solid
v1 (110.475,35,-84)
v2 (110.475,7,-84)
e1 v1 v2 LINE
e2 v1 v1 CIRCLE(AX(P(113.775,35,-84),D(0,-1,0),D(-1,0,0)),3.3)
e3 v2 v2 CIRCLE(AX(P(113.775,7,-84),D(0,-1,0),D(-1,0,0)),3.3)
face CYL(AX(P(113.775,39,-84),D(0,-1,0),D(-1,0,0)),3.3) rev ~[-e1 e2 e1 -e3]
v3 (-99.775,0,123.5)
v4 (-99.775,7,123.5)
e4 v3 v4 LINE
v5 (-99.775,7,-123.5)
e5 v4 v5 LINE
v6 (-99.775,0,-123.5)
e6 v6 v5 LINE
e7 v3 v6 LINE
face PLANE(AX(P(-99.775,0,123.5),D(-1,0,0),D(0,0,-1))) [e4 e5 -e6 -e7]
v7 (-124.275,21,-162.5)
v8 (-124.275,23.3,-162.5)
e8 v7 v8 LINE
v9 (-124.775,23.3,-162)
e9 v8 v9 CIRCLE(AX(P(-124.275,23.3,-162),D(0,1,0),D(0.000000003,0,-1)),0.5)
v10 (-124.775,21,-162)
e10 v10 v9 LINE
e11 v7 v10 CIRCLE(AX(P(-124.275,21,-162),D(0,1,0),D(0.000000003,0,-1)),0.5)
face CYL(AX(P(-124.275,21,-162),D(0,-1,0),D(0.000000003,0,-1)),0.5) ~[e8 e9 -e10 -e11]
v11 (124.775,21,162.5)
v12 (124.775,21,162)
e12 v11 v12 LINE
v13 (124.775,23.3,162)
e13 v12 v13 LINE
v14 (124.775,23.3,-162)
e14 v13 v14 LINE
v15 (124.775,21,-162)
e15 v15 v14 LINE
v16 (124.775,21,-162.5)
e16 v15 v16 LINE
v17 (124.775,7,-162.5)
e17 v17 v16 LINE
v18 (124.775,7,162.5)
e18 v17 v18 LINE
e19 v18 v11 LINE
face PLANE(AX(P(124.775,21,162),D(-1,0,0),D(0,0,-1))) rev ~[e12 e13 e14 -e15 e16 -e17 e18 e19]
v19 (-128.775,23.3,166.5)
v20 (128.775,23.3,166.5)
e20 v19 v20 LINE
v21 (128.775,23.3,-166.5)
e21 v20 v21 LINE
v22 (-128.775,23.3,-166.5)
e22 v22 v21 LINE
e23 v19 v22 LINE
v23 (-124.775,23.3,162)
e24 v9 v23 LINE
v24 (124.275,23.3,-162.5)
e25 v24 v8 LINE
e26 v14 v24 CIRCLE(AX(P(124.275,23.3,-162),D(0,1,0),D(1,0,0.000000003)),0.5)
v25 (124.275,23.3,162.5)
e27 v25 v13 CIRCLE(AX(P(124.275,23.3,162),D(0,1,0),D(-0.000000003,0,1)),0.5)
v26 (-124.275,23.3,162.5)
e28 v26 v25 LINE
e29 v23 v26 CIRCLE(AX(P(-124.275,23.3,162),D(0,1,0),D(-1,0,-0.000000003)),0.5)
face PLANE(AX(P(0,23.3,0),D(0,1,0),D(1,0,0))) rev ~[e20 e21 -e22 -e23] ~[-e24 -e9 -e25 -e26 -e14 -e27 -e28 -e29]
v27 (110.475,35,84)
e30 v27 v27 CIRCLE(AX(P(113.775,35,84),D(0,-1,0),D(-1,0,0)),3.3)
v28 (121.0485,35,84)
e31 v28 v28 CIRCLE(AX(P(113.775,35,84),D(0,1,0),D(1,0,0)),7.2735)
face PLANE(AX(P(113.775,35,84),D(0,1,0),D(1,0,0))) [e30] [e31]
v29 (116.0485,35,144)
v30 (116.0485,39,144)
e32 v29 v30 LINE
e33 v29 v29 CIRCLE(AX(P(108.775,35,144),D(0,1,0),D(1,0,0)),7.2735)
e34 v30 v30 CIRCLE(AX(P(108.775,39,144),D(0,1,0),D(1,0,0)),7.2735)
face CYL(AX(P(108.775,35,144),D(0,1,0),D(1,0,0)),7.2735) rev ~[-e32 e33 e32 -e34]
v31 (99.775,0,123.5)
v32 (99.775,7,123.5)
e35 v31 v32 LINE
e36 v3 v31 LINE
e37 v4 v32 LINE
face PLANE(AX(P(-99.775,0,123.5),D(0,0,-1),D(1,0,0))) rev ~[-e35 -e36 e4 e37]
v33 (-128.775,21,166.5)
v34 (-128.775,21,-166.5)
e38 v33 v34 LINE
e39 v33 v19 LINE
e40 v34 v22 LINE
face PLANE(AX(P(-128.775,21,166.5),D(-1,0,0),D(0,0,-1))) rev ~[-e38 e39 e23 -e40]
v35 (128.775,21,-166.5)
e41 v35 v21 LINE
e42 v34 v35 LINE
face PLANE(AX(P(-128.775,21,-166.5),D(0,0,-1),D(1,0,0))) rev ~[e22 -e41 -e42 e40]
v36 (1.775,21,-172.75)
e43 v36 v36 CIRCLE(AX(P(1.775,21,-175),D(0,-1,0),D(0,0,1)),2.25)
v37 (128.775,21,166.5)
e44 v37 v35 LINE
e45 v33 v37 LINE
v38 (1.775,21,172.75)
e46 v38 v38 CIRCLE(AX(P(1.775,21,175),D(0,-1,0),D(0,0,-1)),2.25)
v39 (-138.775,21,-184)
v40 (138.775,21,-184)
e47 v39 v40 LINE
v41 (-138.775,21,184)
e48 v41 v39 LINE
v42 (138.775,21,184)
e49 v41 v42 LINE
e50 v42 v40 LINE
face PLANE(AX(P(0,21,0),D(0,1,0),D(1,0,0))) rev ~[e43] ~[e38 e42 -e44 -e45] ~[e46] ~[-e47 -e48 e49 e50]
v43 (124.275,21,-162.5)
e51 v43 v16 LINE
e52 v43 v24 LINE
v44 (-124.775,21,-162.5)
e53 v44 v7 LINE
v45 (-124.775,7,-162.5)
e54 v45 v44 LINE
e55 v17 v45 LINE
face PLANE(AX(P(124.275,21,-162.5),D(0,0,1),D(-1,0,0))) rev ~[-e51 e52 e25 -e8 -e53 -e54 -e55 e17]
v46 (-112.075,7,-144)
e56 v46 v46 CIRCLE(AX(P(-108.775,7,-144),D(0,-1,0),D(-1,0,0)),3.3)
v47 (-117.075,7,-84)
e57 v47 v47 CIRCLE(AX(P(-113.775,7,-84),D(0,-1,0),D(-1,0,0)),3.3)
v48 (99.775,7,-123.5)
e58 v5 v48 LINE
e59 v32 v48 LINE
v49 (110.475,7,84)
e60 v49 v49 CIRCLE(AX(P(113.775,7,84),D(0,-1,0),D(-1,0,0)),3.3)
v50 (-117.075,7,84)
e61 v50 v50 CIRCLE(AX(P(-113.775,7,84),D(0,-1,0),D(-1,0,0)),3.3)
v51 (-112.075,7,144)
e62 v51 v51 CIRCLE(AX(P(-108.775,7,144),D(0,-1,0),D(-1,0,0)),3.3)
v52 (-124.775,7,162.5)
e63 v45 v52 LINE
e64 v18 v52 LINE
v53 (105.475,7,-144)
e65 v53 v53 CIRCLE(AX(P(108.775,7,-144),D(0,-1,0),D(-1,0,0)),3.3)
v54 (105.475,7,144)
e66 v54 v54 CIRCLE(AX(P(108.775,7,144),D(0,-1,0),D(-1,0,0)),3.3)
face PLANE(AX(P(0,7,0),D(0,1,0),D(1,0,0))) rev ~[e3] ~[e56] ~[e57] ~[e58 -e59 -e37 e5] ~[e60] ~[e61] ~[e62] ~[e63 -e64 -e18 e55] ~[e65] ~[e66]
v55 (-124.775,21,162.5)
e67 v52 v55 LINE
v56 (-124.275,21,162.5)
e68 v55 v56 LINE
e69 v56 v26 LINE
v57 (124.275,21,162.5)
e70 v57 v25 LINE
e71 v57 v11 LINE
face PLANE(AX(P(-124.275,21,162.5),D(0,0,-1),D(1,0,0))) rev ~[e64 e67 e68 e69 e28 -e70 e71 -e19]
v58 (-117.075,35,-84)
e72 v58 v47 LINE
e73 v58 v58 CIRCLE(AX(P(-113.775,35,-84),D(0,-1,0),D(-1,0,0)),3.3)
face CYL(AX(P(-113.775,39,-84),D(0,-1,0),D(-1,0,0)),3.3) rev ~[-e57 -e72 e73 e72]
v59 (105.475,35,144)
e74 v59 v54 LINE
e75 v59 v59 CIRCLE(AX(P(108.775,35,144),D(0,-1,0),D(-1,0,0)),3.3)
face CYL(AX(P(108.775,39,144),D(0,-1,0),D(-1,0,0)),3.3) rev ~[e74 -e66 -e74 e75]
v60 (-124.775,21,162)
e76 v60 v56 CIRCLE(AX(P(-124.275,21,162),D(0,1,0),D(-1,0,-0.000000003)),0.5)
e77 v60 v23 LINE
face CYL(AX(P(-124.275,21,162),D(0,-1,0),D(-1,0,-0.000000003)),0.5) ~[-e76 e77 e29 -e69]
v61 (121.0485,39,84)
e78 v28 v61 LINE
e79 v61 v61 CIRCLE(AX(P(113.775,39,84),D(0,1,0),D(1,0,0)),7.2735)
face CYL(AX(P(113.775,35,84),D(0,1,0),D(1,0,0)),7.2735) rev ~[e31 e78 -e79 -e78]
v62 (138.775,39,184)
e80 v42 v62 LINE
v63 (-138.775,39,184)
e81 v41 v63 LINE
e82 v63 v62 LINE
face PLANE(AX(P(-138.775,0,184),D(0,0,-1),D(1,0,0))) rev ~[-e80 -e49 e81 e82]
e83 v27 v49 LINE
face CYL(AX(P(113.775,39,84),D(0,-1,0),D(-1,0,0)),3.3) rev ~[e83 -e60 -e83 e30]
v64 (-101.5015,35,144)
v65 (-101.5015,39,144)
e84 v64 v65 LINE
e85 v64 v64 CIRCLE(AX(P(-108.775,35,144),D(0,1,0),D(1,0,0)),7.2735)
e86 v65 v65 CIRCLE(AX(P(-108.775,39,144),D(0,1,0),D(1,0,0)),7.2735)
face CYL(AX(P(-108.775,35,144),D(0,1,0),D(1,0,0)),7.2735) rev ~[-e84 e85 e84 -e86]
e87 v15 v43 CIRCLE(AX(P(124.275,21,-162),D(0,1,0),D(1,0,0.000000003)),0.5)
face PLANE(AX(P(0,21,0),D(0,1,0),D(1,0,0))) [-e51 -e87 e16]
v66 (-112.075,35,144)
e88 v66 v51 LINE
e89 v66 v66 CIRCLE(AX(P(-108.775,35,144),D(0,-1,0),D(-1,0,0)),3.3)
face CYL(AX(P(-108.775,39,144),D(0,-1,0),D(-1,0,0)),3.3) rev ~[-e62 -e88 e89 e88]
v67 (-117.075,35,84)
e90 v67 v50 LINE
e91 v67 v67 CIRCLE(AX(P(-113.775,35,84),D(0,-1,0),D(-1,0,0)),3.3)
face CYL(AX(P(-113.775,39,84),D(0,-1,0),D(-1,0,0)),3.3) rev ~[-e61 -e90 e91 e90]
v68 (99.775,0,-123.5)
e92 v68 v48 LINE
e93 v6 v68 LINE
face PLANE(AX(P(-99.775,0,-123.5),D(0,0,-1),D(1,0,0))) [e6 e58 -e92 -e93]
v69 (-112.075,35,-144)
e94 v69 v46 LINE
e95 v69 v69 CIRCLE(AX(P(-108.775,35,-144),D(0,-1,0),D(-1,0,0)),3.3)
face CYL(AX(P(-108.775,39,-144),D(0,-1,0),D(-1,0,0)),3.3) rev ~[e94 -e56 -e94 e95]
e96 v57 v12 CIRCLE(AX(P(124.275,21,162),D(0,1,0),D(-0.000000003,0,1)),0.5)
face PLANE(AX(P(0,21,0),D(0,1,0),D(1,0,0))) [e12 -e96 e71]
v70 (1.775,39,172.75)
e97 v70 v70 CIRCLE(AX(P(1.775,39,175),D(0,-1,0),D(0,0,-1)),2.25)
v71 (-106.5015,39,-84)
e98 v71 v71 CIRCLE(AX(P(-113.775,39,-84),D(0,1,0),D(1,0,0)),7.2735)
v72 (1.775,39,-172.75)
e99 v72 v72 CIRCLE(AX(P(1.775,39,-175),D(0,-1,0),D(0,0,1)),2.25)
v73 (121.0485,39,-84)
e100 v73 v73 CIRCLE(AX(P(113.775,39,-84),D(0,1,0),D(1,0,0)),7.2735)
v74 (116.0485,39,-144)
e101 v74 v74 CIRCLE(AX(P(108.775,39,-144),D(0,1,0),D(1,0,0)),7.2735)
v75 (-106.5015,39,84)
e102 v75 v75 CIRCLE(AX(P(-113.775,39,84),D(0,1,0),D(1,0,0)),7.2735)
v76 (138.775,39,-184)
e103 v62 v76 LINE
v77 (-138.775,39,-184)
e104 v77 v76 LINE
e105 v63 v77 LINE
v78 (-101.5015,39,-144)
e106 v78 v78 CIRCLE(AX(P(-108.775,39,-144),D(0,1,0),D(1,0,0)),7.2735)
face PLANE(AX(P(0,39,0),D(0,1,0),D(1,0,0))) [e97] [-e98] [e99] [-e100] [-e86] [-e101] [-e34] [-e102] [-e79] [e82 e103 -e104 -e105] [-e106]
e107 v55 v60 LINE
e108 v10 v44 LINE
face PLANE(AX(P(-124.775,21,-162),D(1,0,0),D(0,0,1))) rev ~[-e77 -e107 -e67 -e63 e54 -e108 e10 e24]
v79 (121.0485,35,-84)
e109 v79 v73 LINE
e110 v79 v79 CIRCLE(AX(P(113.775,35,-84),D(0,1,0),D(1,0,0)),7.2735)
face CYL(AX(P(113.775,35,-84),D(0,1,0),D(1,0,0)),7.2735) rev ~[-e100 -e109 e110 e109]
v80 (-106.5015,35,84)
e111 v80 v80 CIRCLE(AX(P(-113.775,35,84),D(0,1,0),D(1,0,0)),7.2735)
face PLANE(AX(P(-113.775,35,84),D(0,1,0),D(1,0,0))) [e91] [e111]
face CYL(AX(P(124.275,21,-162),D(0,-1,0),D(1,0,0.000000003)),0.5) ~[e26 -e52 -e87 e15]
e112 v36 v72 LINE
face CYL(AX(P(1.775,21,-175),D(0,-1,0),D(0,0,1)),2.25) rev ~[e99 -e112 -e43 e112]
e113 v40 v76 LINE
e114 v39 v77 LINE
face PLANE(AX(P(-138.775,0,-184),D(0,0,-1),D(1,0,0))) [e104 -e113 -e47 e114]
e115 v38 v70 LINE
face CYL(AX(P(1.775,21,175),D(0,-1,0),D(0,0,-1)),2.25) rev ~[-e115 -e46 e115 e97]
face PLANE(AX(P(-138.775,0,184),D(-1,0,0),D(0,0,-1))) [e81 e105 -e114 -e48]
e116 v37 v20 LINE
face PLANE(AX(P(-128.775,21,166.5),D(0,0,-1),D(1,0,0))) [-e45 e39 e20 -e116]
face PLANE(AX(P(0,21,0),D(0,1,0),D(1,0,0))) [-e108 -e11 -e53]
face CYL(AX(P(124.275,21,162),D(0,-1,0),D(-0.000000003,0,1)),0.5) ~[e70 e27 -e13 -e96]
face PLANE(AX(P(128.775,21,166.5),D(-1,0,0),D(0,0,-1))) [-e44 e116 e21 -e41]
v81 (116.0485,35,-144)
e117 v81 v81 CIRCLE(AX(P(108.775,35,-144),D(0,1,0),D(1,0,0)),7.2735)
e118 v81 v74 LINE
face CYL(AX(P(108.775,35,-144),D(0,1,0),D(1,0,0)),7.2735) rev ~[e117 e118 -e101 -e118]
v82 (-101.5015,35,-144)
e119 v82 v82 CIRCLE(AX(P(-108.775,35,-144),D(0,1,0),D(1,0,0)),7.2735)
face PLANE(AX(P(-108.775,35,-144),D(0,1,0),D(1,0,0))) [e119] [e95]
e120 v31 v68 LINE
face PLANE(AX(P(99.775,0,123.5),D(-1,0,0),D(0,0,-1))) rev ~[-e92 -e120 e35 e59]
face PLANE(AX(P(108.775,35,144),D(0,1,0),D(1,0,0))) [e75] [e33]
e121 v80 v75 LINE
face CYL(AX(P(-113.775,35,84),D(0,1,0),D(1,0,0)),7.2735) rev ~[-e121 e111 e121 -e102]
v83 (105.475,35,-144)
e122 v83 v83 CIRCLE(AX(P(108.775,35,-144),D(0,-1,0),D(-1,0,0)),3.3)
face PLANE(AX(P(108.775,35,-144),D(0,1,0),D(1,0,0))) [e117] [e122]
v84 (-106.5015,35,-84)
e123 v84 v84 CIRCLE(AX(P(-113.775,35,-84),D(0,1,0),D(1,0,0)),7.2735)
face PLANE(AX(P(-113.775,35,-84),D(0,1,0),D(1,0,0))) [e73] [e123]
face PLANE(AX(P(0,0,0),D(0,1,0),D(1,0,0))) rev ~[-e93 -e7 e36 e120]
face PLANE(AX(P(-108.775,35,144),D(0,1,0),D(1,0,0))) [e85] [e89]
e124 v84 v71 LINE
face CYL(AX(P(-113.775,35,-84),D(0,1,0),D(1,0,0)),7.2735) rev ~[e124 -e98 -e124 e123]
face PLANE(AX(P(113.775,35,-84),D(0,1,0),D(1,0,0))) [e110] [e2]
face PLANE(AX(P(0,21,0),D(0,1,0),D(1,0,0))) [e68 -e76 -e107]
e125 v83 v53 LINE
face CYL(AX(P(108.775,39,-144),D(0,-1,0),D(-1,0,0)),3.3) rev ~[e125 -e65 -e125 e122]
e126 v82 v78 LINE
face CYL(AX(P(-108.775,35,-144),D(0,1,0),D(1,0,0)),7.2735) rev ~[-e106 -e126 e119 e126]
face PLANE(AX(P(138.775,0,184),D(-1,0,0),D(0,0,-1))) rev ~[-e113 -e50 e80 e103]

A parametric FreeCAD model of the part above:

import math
import FreeCAD as App
import Part
import Sketcher


def add_polygon(sketch, points):
    """Adds a closed chain of lines whose ends are joined by coincident constraints."""
    first, n = sketch.GeometryCount, len(points)
    for a, b in zip(points, points[1:] + points[:1]):
        sketch.addGeometry(Part.LineSegment(App.Vector(*a, 0), App.Vector(*b, 0)), False)
    for i in range(n):
        sketch.addConstraint(Sketcher.Constraint("Coincident", first + i, 2, first + (i + 1) % n, 1))

doc = App.newDocument("Part")
body = doc.addObject("PartDesign::Body", "Body")

sketch1 = doc.addObject("Sketcher::SketchObject", "Sketch")
body.addObject(sketch1)
sketch1.AttachmentSupport = (doc.XZ_Plane, [""])
sketch1.MapMode = "FlatFace"
add_polygon(sketch1, [(-138.775, -184), (-138.775, 184), (138.775, 184), (138.775, -184)])
sketch1.addConstraint([
    Sketcher.Constraint("Vertical", 0),
    Sketcher.Constraint("Horizontal", 1),
    Sketcher.Constraint("Vertical", 2),
    Sketcher.Constraint("Horizontal", 3),
    Sketcher.Constraint("Symmetric", 0, 2, 2, 2, -1, 1),
    Sketcher.Constraint("DistanceY", 0, 1, 0, 2, 368.0),
    Sketcher.Constraint("DistanceX", 1, 1, 1, 2, 277.55),
])
pad1 = doc.addObject("PartDesign::Pad", "Pad")
body.addObject(pad1)
pad1.Profile = sketch1
pad1.Length = 39
pad1.Reversed = True

sketch2 = doc.addObject("Sketcher::SketchObject", "Sketch001")
body.addObject(sketch2)
sketch2.AttachmentSupport = (doc.XZ_Plane, [""])
sketch2.MapMode = "FlatFace"
add_polygon(sketch2, [(-186.033, -231.258), (-186.033, 231.258), (186.033, 231.258), (186.033, -231.258)])
add_polygon(sketch2, [(99.775, 123.5), (-99.775, 123.5), (-99.775, -123.5), (99.775, -123.5)])
sketch2.addConstraint([
    Sketcher.Constraint("Vertical", 0),
    Sketcher.Constraint("Horizontal", 1),
    Sketcher.Constraint("Vertical", 2),
    Sketcher.Constraint("Horizontal", 3),
    Sketcher.Constraint("Horizontal", 4),
    Sketcher.Constraint("Vertical", 5),
    Sketcher.Constraint("Horizontal", 6),
    Sketcher.Constraint("Vertical", 7),
    Sketcher.Constraint("Symmetric", 0, 2, 2, 2, -1, 1),
    Sketcher.Constraint("Symmetric", 4, 2, 6, 2, -1, 1),
    Sketcher.Constraint("DistanceY", 5, 2, 5, 1, 247.0),
    Sketcher.Constraint("DistanceX", 4, 2, 4, 1, 199.55),
    Sketcher.Constraint("DistanceX", 1, 1, 1, 2, 372.066),
    Sketcher.Constraint("DistanceY", 0, 1, 0, 2, 462.516),
])
pocket1 = doc.addObject("PartDesign::Pocket", "Pocket")
body.addObject(pocket1)
pocket1.Profile = sketch2
pocket1.Length = 7

sketch3 = doc.addObject("Sketcher::SketchObject", "Sketch002")
body.addObject(sketch3)
sketch3.AttachmentSupport = (doc.XZ_Plane, [""])
sketch3.MapMode = "FlatFace"
add_polygon(sketch3, [(-186.033, -231.258), (-186.033, 231.258), (186.033, 231.258), (186.033, -231.258)])
add_polygon(sketch3, [(124.775, 162.5), (-124.775, 162.5), (-124.775, -162.5), (124.775, -162.5)])
sketch3.addConstraint([
    Sketcher.Constraint("Vertical", 0),
    Sketcher.Constraint("Horizontal", 1),
    Sketcher.Constraint("Vertical", 2),
    Sketcher.Constraint("Horizontal", 3),
    Sketcher.Constraint("Horizontal", 4),
    Sketcher.Constraint("Vertical", 5),
    Sketcher.Constraint("Horizontal", 6),
    Sketcher.Constraint("Vertical", 7),
    Sketcher.Constraint("Symmetric", 0, 2, 2, 2, -1, 1),
    Sketcher.Constraint("Symmetric", 4, 2, 6, 2, -1, 1),
    Sketcher.Constraint("DistanceY", 5, 2, 5, 1, 325.0),
    Sketcher.Constraint("DistanceX", 4, 2, 4, 1, 249.55),
    Sketcher.Constraint("DistanceX", 1, 1, 1, 2, 372.066),
    Sketcher.Constraint("DistanceY", 0, 1, 0, 2, 462.516),
])
pocket2 = doc.addObject("PartDesign::Pocket", "Pocket001")
body.addObject(pocket2)
pocket2.Profile = sketch3
pocket2.Length = 21

sketch4 = doc.addObject("Sketcher::SketchObject", "Sketch003")
body.addObject(sketch4)
sketch4.AttachmentSupport = (doc.XZ_Plane, [""])
sketch4.MapMode = "FlatFace"
sketch4.AttachmentOffset = App.Placement(App.Vector(0, 0, -39), App.Rotation())
sketch4.addGeometry([
    Part.Circle(App.Vector(-108.775, 144, 0), App.Vector(0, 0, 1), 3.3),
    Part.Circle(App.Vector(-113.775, 84, 0), App.Vector(0, 0, 1), 3.3),
    Part.Circle(App.Vector(-113.775, -84, 0), App.Vector(0, 0, 1), 3.3),
    Part.Circle(App.Vector(-108.775, -144, 0), App.Vector(0, 0, 1), 3.3),
    Part.Circle(App.Vector(108.775, -144, 0), App.Vector(0, 0, 1), 3.3),
    Part.Circle(App.Vector(113.775, -84, 0), App.Vector(0, 0, 1), 3.3),
    Part.Circle(App.Vector(113.775, 84, 0), App.Vector(0, 0, 1), 3.3),
    Part.Circle(App.Vector(108.775, 144, 0), App.Vector(0, 0, 1), 3.3),
], False)
sketch4.addConstraint([
    Sketcher.Constraint("Equal", 0, 1),
    Sketcher.Constraint("Equal", 1, 2),
    Sketcher.Constraint("Equal", 2, 3),
    Sketcher.Constraint("Equal", 3, 4),
    Sketcher.Constraint("Equal", 4, 5),
    Sketcher.Constraint("Equal", 5, 6),
    Sketcher.Constraint("Equal", 6, 7),
    Sketcher.Constraint("Symmetric", 0, 3, 4, 3, -1, 1),
    Sketcher.Constraint("Symmetric", 1, 3, 5, 3, -1, 1),
    Sketcher.Constraint("Symmetric", 2, 3, 6, 3, -1, 1),
    Sketcher.Constraint("Symmetric", 3, 3, 7, 3, -1, 1),
    Sketcher.Constraint("Symmetric", 3, 3, 4, 3, -2),
    Sketcher.Constraint("Symmetric", 2, 3, 5, 3, -2),
    Sketcher.Constraint("Diameter", 0, 6.6),
    Sketcher.Constraint("DistanceY", -1, 1, 0, 3, 144.0),
    Sketcher.Constraint("DistanceY", -1, 1, 1, 3, 84.0),
    Sketcher.Constraint("DistanceX", 1, 3, 0, 3, 5.0),
    Sketcher.Constraint("DistanceX", 3, 3, 4, 3, 217.55),
])
doc.recompute()
hole = doc.addObject("PartDesign::Hole", "Hole")
body.addObject(hole)
hole.Profile = sketch4
hole.ThreadType = "None"
hole.Diameter = 6.6
hole.DepthType = "ThroughAll"
hole.HoleCutType = "Counterbore"
hole.HoleCutDiameter = 14.547
hole.HoleCutDepth = 4
hole.Reversed = True

sketch5 = doc.addObject("Sketcher::SketchObject", "Sketch004")
body.addObject(sketch5)
sketch5.AttachmentSupport = (doc.XZ_Plane, [""])
sketch5.MapMode = "FlatFace"
sketch5.AttachmentOffset = App.Placement(App.Vector(0, 0, -21), App.Rotation())
add_polygon(sketch5, [(-128.775, -166.5), (-128.775, 166.5), (128.775, 166.5), (128.775, -166.5)])
sketch5.addGeometry(Part.LineSegment(App.Vector(-124.275, -162.5, 0), App.Vector(124.275, -162.5, 0)), False)
sketch5.addGeometry(Part.ArcOfCircle(Part.Circle(App.Vector(124.275, -162, 0), App.Vector(0, 0, 1), 0.5), math.radians(-90), math.radians(0)), False)
sketch5.addGeometry(Part.LineSegment(App.Vector(124.775, -162, 0), App.Vector(124.775, 162, 0)), False)
sketch5.addGeometry(Part.ArcOfCircle(Part.Circle(App.Vector(124.275, 162, 0), App.Vector(0, 0, 1), 0.5), math.radians(0), math.radians(90)), False)
sketch5.addGeometry(Part.LineSegment(App.Vector(124.275, 162.5, 0), App.Vector(-124.275, 162.5, 0)), False)
sketch5.addGeometry(Part.ArcOfCircle(Part.Circle(App.Vector(-124.275, 162, 0), App.Vector(0, 0, 1), 0.5), math.radians(90), math.radians(180)), False)
sketch5.addGeometry(Part.LineSegment(App.Vector(-124.775, 162, 0), App.Vector(-124.775, -162, 0)), False)
sketch5.addGeometry(Part.ArcOfCircle(Part.Circle(App.Vector(-124.275, -162, 0), App.Vector(0, 0, 1), 0.5), math.radians(180), math.radians(270)), False)
sketch5.addConstraint([
    Sketcher.Constraint("Tangent", 4, 2, 5, 1),
    Sketcher.Constraint("Tangent", 5, 2, 6, 1),
    Sketcher.Constraint("Tangent", 6, 2, 7, 1),
    Sketcher.Constraint("Tangent", 7, 2, 8, 1),
    Sketcher.Constraint("Tangent", 8, 2, 9, 1),
    Sketcher.Constraint("Tangent", 9, 2, 10, 1),
    Sketcher.Constraint("Tangent", 10, 2, 11, 1),
    Sketcher.Constraint("Tangent", 11, 2, 4, 1),
    Sketcher.Constraint("Vertical", 0),
    Sketcher.Constraint("Horizontal", 1),
    Sketcher.Constraint("Vertical", 2),
    Sketcher.Constraint("Horizontal", 3),
    Sketcher.Constraint("Horizontal", 4),
    Sketcher.Constraint("Vertical", 6),
    Sketcher.Constraint("Horizontal", 8),
    Sketcher.Constraint("Vertical", 10),
    Sketcher.Constraint("Equal", 5, 7),
    Sketcher.Constraint("Equal", 7, 9),
    Sketcher.Constraint("Equal", 9, 11),
    Sketcher.Constraint("Symmetric", 5, 3, 9, 3, -1, 1),
    Sketcher.Constraint("Symmetric", 0, 2, 2, 2, -1, 1),
    Sketcher.Constraint("Radius", 5, 0.5),
    Sketcher.Constraint("DistanceY", 0, 1, 0, 2, 333.0),
    Sketcher.Constraint("DistanceY", 6, 1, 6, 2, 324.0),
    Sketcher.Constraint("DistanceX", 5, 2, 2, 2, 4.0),
    Sketcher.Constraint("DistanceX", 1, 1, 1, 2, 257.55),
])
pocket3 = doc.addObject("PartDesign::Pocket", "Pocket002")
body.addObject(pocket3)
pocket3.Profile = sketch5
pocket3.Length = 2.3

sketch6 = doc.addObject("Sketcher::SketchObject", "Sketch005")
body.addObject(sketch6)
sketch6.AttachmentSupport = (doc.XZ_Plane, [""])
sketch6.MapMode = "FlatFace"
sketch6.AttachmentOffset = App.Placement(App.Vector(0, 0, -21), App.Rotation())
sketch6.addGeometry([
    Part.Circle(App.Vector(1.775, 175, 0), App.Vector(0, 0, 1), 2.25),
    Part.Circle(App.Vector(1.775, -175, 0), App.Vector(0, 0, 1), 2.25),
], False)
sketch6.addConstraint([
    Sketcher.Constraint("Equal", 0, 1),
    Sketcher.Constraint("Symmetric", 0, 3, 1, 3, -1),
    Sketcher.Constraint("Diameter", 0, 4.5),
    Sketcher.Constraint("DistanceY", -1, 1, 0, 3, 175.0),
    Sketcher.Constraint("DistanceX", -1, 1, 0, 3, 1.775),
])
pocket4 = doc.addObject("PartDesign::Pocket", "Pocket003")
body.addObject(pocket4)
pocket4.Profile = sketch6
pocket4.Type = "ThroughAll"

doc.recompute()
